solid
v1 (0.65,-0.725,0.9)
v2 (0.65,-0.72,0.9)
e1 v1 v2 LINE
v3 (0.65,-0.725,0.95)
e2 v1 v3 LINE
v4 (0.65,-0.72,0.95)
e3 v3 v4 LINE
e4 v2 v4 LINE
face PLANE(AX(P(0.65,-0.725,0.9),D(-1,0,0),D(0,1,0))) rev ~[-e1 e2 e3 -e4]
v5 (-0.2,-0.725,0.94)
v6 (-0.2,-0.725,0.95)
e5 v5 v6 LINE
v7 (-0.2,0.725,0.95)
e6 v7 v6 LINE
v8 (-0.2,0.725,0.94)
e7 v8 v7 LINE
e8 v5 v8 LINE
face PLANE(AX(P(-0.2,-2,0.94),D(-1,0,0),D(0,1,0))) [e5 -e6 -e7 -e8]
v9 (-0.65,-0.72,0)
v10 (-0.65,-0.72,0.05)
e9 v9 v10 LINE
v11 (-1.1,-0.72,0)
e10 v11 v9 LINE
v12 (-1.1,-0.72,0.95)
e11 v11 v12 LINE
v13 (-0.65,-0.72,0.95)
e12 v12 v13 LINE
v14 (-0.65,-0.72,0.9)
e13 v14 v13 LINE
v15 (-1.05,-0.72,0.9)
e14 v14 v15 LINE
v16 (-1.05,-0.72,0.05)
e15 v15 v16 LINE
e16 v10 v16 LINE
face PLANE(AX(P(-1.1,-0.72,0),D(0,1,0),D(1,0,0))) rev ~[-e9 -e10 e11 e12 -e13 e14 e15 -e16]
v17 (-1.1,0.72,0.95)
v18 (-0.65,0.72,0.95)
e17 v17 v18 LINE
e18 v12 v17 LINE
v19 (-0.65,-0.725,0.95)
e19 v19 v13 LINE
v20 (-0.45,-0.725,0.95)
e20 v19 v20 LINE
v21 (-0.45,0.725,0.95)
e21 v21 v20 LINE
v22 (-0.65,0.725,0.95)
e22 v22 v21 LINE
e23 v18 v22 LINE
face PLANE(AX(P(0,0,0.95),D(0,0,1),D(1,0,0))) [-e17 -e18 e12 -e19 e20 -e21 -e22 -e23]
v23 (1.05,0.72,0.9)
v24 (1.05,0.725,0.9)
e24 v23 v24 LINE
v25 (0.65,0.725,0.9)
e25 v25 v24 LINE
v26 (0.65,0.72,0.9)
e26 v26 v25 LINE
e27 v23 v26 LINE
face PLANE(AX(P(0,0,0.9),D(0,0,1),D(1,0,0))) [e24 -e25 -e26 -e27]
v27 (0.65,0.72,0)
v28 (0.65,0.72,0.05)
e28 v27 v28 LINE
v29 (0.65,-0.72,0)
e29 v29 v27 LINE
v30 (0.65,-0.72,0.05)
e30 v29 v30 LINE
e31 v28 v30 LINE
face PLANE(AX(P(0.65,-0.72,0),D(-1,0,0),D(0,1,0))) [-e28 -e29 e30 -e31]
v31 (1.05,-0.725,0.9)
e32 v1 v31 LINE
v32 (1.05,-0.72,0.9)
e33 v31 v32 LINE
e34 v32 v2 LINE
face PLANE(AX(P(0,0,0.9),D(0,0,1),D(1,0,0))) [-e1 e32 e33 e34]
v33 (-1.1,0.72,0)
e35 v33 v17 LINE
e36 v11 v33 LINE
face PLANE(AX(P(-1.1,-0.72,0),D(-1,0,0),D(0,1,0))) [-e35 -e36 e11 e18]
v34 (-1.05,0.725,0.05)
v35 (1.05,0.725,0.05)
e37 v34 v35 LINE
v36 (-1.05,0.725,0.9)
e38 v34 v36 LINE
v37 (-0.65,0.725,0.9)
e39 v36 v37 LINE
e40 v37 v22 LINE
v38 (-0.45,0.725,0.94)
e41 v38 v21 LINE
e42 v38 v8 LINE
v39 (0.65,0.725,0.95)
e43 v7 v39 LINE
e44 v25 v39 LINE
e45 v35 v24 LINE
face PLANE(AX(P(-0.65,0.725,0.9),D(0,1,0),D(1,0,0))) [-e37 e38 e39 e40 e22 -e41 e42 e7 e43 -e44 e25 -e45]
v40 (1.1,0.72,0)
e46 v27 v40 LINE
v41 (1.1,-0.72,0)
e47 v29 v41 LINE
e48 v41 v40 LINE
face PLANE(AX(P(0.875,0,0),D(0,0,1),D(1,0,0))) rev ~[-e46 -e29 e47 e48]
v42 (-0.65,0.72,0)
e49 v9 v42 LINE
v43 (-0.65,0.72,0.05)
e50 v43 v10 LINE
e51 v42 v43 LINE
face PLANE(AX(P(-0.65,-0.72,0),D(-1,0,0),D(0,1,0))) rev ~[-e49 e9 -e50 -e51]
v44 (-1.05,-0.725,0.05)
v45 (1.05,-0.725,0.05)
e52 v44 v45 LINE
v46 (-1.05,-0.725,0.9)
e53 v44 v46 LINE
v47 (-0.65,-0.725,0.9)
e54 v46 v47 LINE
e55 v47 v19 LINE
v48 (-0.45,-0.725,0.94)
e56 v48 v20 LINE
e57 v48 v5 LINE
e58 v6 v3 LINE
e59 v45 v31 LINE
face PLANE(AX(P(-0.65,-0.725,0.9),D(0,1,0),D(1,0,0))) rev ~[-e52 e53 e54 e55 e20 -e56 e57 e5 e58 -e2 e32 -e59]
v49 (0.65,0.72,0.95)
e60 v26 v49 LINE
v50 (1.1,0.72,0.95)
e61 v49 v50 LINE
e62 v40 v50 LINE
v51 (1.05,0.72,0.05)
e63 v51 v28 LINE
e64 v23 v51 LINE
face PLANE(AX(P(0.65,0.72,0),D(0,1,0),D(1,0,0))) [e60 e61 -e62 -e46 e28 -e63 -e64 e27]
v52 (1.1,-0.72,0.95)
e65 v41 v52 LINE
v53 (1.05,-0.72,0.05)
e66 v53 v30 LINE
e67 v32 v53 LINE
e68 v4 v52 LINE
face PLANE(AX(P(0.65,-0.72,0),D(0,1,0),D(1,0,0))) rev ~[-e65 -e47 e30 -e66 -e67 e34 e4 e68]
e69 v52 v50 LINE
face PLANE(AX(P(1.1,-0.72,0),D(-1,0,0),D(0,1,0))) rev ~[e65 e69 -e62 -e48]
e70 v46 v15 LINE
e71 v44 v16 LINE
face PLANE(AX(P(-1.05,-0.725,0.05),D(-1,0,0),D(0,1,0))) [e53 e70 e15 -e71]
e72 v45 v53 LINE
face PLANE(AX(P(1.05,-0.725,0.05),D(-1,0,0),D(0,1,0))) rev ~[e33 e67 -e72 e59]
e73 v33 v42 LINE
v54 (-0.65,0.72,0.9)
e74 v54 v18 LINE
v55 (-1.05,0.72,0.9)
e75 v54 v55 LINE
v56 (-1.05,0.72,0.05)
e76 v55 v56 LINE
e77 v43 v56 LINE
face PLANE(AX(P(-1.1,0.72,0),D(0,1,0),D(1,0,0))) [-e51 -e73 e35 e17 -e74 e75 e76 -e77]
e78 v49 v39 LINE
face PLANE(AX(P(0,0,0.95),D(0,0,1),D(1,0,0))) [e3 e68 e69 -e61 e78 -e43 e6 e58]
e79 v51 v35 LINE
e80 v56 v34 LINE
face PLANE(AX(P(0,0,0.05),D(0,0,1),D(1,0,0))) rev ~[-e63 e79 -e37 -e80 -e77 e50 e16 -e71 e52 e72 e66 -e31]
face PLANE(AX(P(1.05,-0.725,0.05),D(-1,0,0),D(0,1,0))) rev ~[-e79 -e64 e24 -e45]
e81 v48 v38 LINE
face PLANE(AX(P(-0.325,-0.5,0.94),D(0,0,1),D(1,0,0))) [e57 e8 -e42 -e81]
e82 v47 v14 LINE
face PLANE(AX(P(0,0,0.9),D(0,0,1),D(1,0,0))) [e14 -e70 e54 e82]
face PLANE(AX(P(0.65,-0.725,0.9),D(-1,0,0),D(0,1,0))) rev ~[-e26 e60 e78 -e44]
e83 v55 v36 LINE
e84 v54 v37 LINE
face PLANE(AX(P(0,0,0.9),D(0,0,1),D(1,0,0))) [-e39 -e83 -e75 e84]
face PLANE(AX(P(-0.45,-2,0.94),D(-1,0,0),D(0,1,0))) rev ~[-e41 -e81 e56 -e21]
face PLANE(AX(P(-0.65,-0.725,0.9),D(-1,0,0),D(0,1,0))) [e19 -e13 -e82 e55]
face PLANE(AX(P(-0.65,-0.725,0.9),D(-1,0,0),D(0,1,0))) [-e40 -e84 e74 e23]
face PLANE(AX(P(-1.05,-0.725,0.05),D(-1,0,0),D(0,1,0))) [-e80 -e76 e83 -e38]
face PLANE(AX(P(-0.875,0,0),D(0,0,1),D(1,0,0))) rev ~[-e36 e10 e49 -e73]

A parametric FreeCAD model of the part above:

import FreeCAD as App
import Part
import Sketcher

V = App.Vector


def add_polygon(sketch, points):
    """Adds a closed chain of lines whose ends are joined by coincident constraints."""
    first, n = sketch.GeometryCount, len(points)
    for a, b in zip(points, points[1:] + points[:1]):
        sketch.addGeometry(Part.LineSegment(App.Vector(*a, 0), App.Vector(*b, 0)), False)
    for i in range(n):
        sketch.addConstraint(Sketcher.Constraint("Coincident", first + i, 2, first + (i + 1) % n, 1))

doc = App.newDocument("Part")
body = doc.addObject("PartDesign::Body", "Body")

# Sketch on XY plane
sketch1 = doc.addObject("Sketcher::SketchObject", "Sketch")
body.addObject(sketch1)
sketch1.AttachmentSupport = (doc.XY_Plane, [""])
sketch1.MapMode = "FlatFace"
add_polygon(sketch1, [(-1.1, 0.72), (-1.1, -0.72), (-0.65, -0.72), (-0.65, 0.72)])  # lines 0-3
sketch1.addConstraint([
    Sketcher.Constraint("Vertical", 0),
    Sketcher.Constraint("Horizontal", 1),
    Sketcher.Constraint("Vertical", 2),
    Sketcher.Constraint("Horizontal", 3),
    Sketcher.Constraint("DistanceX", 1, 1, 1, 2, 0.45),
    Sketcher.Constraint("DistanceY", 0, 2, 0, 1, 1.44),
    Sketcher.Constraint("DistanceX", 0, 2, -1, 1, 1.1),
    Sketcher.Constraint("DistanceY", 0, 2, -1, 1, 0.72),
])
pad1 = doc.addObject("PartDesign::Pad", "Pad")
body.addObject(pad1)
pad1.Profile = sketch1
pad1.Length = 0.95
body2 = doc.addObject("PartDesign::Body", "Body001")

# Sketch on XY plane
sketch2 = doc.addObject("Sketcher::SketchObject", "Sketch001")
body2.addObject(sketch2)
sketch2.AttachmentSupport = (doc.getObject("XY_Plane001"), [""])
sketch2.MapMode = "FlatFace"
add_polygon(sketch2, [(0.65, 0.72), (0.65, -0.72), (1.1, -0.72), (1.1, 0.72)])  # lines 0-3
sketch2.addConstraint([
    Sketcher.Constraint("Vertical", 0),
    Sketcher.Constraint("Horizontal", 1),
    Sketcher.Constraint("Vertical", 2),
    Sketcher.Constraint("Horizontal", 3),
    Sketcher.Constraint("DistanceX", 1, 1, 1, 2, 0.45),
    Sketcher.Constraint("DistanceY", 0, 2, 0, 1, 1.44),
    Sketcher.Constraint("DistanceX", -1, 1, 1, 2, 1.1),
    Sketcher.Constraint("DistanceY", 0, 2, -1, 1, 0.72),
])
pad2 = doc.addObject("PartDesign::Pad", "Pad001")
body2.addObject(pad2)
pad2.Profile = sketch2
pad2.Length = 0.95
body3 = doc.addObject("PartDesign::Body", "Body002")

# Sketch on XY plane
sketch3 = doc.addObject("Sketcher::SketchObject", "Sketch002")
body3.addObject(sketch3)
sketch3.AttachmentSupport = (doc.getObject("XY_Plane002"), [""])
sketch3.MapMode = "FlatFace"
sketch3.AttachmentOffset = App.Placement(V(0, 0, 0.94), App.Rotation())
add_polygon(sketch3, [(-0.45, 1), (-0.45, -2), (-0.2, -2), (-0.2, 1)])  # lines 0-3
sketch3.addConstraint([
    Sketcher.Constraint("Vertical", 0),
    Sketcher.Constraint("Horizontal", 1),
    Sketcher.Constraint("Vertical", 2),
    Sketcher.Constraint("Horizontal", 3),
    Sketcher.Constraint("DistanceY", 0, 2, 0, 1, 3.0),
    Sketcher.Constraint("DistanceY", 0, 2, -1, 1, 2.0),
    Sketcher.Constraint("DistanceX", 1, 1, 1, 2, 0.25),
    Sketcher.Constraint("DistanceX", 1, 2, -1, 1, 0.2),
])
pad3 = doc.addObject("PartDesign::Pad", "Pad002")
body3.addObject(pad3)
pad3.Profile = sketch3
pad3.Length = 3
body4 = doc.addObject("PartDesign::Body", "Body003")

# Sketch on XY plane
sketch4 = doc.addObject("Sketcher::SketchObject", "Sketch003")
body4.addObject(sketch4)
sketch4.AttachmentSupport = (doc.getObject("XY_Plane003"), [""])
sketch4.MapMode = "FlatFace"
sketch4.AttachmentOffset = App.Placement(V(0, 0, 0.9), App.Rotation())
add_polygon(sketch4, [(-0.7, 0.7), (-0.7, -0.7), (0.7, -0.7), (0.7, 0.7)])  # lines 0-3
sketch4.addConstraint([
    Sketcher.Constraint("Vertical", 0),
    Sketcher.Constraint("Horizontal", 1),
    Sketcher.Constraint("Vertical", 2),
    Sketcher.Constraint("Horizontal", 3),
    Sketcher.Constraint("Symmetric", 0, 2, 2, 2, -1, 1),
    Sketcher.Constraint("DistanceX", 1, 1, 1, 2, 1.3),
    Sketcher.Constraint("DistanceY", 0, 2, 0, 1, 1.45),
])
pad4 = doc.addObject("PartDesign::Pad", "Pad003")
body4.addObject(pad4)
pad4.Profile = sketch4
pad4.Length = 0.05
doc.recompute()

boolean = doc.addObject("PartDesign::Boolean", "Boolean")
body4.addObject(boolean)
boolean.Type = "Cut"
boolean.addObjects([body3])
body5 = doc.addObject("PartDesign::Body", "Body004")

# Sketch on XY plane
sketch5 = doc.addObject("Sketcher::SketchObject", "Sketch004")
body5.addObject(sketch5)
sketch5.AttachmentSupport = (doc.getObject("XY_Plane004"), [""])
sketch5.MapMode = "FlatFace"
sketch5.AttachmentOffset = App.Placement(V(0, 0, 0.05), App.Rotation())
add_polygon(sketch5, [(-1.1, 0.7), (-1.1, -0.7), (1.1, -0.7), (1.1, 0.7)])  # lines 0-3
sketch5.addConstraint([
    Sketcher.Constraint("Vertical", 0),
    Sketcher.Constraint("Horizontal", 1),
    Sketcher.Constraint("Vertical", 2),
    Sketcher.Constraint("Horizontal", 3),
    Sketcher.Constraint("Symmetric", 0, 2, 2, 2, -1, 1),
    Sketcher.Constraint("DistanceX", 1, 1, 1, 2, 2.1),
    Sketcher.Constraint("DistanceY", 0, 2, 0, 1, 1.45),
])
pad5 = doc.addObject("PartDesign::Pad", "Pad004")
body5.addObject(pad5)
pad5.Profile = sketch5
pad5.Length = 0.85
doc.recompute()

boolean2 = doc.addObject("PartDesign::Boolean", "Boolean001")
body5.addObject(boolean2)
boolean2.Type = "Fuse"
boolean2.addObjects([body])
doc.recompute()

boolean3 = doc.addObject("PartDesign::Boolean", "Boolean002")
body5.addObject(boolean3)
boolean3.Type = "Fuse"
boolean3.addObjects([body2])
doc.recompute()

boolean4 = doc.addObject("PartDesign::Boolean", "Boolean003")
body5.addObject(boolean4)
boolean4.Type = "Fuse"
boolean4.addObjects([body4])

doc.recompute()
